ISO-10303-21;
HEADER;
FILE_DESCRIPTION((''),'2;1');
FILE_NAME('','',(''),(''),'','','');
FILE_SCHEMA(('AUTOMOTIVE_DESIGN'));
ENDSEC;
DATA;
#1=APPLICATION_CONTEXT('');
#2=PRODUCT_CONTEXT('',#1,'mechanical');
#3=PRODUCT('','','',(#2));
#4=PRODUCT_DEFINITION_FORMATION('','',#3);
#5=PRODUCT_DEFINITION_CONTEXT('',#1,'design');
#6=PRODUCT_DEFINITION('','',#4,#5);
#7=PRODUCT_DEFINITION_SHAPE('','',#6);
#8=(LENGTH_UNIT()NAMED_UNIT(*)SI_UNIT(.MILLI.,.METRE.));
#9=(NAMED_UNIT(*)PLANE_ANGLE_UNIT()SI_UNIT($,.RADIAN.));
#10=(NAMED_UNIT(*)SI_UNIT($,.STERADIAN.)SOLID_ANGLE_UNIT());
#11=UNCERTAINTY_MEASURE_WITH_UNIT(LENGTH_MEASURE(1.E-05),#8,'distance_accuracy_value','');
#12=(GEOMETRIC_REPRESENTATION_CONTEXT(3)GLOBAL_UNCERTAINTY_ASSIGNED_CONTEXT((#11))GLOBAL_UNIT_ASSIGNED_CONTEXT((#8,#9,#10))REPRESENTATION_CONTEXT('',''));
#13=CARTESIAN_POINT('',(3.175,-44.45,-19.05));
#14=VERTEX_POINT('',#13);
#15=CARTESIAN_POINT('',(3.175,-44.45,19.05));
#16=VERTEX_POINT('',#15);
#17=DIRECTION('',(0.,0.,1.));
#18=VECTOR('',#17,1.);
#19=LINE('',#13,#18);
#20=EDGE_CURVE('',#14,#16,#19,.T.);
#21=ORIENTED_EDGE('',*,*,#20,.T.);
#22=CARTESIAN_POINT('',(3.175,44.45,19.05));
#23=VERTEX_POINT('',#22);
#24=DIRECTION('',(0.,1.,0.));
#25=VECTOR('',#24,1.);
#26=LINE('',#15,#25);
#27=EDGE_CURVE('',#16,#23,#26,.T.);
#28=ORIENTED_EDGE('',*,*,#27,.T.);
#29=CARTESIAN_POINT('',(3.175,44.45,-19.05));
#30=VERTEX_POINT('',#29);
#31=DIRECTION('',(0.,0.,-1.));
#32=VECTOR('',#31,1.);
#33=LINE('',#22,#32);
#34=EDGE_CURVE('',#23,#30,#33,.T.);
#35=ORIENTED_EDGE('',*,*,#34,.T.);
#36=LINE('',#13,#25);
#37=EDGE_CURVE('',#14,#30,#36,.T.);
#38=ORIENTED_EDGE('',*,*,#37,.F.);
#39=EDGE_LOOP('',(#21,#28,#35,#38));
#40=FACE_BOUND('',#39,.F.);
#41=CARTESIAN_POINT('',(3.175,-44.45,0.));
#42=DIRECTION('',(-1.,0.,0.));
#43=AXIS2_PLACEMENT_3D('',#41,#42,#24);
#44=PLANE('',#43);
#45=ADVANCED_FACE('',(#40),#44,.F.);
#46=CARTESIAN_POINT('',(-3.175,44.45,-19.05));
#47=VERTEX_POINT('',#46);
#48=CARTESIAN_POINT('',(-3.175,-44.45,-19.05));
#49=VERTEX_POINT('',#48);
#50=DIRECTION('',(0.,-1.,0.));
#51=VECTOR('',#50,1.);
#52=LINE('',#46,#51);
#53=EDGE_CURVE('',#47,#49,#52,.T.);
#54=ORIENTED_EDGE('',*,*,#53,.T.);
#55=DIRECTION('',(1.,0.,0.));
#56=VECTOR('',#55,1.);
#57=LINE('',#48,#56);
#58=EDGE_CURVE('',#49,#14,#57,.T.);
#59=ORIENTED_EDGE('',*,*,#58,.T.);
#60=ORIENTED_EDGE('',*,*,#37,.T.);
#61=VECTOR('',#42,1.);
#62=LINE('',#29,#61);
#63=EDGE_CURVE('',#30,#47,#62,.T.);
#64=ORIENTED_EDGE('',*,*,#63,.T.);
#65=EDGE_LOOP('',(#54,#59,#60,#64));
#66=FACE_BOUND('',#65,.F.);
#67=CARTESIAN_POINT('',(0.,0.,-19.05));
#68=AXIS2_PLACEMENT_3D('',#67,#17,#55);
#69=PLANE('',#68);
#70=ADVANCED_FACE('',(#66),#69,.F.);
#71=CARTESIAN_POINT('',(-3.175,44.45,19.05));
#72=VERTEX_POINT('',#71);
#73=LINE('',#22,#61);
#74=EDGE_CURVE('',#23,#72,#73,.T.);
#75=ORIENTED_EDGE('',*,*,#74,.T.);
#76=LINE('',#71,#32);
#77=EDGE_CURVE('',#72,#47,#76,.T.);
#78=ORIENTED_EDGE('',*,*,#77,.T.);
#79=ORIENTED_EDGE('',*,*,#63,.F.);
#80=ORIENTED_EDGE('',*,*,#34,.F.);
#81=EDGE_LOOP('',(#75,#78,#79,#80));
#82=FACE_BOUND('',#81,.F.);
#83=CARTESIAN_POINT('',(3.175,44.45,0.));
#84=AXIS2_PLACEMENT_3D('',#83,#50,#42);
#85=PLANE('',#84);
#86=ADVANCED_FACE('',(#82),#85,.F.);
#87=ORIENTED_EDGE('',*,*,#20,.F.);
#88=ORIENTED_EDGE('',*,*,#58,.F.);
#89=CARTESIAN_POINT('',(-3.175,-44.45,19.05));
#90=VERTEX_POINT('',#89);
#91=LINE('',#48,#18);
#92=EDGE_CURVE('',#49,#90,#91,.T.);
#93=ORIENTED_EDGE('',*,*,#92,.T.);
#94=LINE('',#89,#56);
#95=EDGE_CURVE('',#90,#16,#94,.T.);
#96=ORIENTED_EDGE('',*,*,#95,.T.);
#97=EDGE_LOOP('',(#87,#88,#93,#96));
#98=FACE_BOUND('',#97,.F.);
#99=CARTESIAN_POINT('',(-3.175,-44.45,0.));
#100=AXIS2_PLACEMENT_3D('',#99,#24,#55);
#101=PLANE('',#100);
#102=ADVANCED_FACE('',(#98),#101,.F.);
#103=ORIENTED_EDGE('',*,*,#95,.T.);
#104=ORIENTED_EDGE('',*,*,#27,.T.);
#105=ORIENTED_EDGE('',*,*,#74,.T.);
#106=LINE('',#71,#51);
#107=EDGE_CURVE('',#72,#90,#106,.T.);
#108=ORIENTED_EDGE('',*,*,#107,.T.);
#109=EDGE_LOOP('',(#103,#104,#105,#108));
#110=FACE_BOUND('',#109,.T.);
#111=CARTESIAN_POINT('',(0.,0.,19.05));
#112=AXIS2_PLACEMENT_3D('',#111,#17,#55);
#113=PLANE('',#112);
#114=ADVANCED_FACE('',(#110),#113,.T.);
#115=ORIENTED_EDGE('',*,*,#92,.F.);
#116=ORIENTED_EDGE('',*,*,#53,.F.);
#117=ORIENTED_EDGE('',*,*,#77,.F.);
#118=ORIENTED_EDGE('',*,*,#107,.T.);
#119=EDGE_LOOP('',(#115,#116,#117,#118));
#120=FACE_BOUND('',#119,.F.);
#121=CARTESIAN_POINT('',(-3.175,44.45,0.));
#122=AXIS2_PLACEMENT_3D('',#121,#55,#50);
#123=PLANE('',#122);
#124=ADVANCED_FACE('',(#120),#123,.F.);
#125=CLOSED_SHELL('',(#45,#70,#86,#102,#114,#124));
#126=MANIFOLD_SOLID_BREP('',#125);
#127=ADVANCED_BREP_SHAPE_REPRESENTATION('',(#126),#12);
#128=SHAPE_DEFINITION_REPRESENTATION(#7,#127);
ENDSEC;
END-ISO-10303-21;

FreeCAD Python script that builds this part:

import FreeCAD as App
import Part
import Sketcher
Q = App.Units.Quantity

doc = App.newDocument("Part")
params = doc.addObject("Spreadsheet::Sheet", "Params")
for row, (alias, value) in enumerate([
    ("sketch1_height", "3.5 in"),
    ("sketch1_width", "0.25 in"),
    ("pad1_length", "1.5 in"),
], start=1):
    params.set(f"A{row}", alias)
    params.set(f"B{row}", "=" + value)
    params.setAlias(f"B{row}", alias)

body = doc.addObject("PartDesign::Body", "Body")

# Sketch on XY plane
sketch1 = body.newObject("Sketcher::SketchObject", "Sketch")
sketch1.AttachmentSupport = (doc.getObject("XY_Plane"), [""])
sketch1.MapMode = "FlatFace"
sketch1.addGeometry([
    Part.LineSegment(App.Vector(-3, 44, 0), App.Vector(-3, -44, 0)),
    Part.LineSegment(App.Vector(-3, -44, 0), App.Vector(3, -44, 0)),
    Part.LineSegment(App.Vector(3, -44, 0), App.Vector(3, 44, 0)),
    Part.LineSegment(App.Vector(3, 44, 0), App.Vector(-3, 44, 0)),
], False)
sketch1.addConstraint([
    Sketcher.Constraint("Coincident", 0, 2, 1, 1),
    Sketcher.Constraint("Coincident", 1, 2, 2, 1),
    Sketcher.Constraint("Coincident", 2, 2, 3, 1),
    Sketcher.Constraint("Coincident", 3, 2, 0, 1),
    Sketcher.Constraint("Vertical", 0),
    Sketcher.Constraint("Horizontal", 1),
    Sketcher.Constraint("Vertical", 2),
    Sketcher.Constraint("Horizontal", 3),
    Sketcher.Constraint("Symmetric", 0, 2, 2, 2, -1, 1),
    Sketcher.Constraint("DistanceY", 0, 2, 0, 1, Q("3.5 in")),
    Sketcher.Constraint("DistanceX", 1, 1, 1, 2, Q("0.25 in")),
])
sketch1.setExpression("Constraints[9]", "Params.sketch1_height")
sketch1.setExpression("Constraints[10]", "Params.sketch1_width")
pad1 = body.newObject("PartDesign::Pad", "Pad")
pad1.Profile = sketch1
pad1.setExpression("Length", "Params.pad1_length")
pad1.Midplane = True

doc.recompute()
